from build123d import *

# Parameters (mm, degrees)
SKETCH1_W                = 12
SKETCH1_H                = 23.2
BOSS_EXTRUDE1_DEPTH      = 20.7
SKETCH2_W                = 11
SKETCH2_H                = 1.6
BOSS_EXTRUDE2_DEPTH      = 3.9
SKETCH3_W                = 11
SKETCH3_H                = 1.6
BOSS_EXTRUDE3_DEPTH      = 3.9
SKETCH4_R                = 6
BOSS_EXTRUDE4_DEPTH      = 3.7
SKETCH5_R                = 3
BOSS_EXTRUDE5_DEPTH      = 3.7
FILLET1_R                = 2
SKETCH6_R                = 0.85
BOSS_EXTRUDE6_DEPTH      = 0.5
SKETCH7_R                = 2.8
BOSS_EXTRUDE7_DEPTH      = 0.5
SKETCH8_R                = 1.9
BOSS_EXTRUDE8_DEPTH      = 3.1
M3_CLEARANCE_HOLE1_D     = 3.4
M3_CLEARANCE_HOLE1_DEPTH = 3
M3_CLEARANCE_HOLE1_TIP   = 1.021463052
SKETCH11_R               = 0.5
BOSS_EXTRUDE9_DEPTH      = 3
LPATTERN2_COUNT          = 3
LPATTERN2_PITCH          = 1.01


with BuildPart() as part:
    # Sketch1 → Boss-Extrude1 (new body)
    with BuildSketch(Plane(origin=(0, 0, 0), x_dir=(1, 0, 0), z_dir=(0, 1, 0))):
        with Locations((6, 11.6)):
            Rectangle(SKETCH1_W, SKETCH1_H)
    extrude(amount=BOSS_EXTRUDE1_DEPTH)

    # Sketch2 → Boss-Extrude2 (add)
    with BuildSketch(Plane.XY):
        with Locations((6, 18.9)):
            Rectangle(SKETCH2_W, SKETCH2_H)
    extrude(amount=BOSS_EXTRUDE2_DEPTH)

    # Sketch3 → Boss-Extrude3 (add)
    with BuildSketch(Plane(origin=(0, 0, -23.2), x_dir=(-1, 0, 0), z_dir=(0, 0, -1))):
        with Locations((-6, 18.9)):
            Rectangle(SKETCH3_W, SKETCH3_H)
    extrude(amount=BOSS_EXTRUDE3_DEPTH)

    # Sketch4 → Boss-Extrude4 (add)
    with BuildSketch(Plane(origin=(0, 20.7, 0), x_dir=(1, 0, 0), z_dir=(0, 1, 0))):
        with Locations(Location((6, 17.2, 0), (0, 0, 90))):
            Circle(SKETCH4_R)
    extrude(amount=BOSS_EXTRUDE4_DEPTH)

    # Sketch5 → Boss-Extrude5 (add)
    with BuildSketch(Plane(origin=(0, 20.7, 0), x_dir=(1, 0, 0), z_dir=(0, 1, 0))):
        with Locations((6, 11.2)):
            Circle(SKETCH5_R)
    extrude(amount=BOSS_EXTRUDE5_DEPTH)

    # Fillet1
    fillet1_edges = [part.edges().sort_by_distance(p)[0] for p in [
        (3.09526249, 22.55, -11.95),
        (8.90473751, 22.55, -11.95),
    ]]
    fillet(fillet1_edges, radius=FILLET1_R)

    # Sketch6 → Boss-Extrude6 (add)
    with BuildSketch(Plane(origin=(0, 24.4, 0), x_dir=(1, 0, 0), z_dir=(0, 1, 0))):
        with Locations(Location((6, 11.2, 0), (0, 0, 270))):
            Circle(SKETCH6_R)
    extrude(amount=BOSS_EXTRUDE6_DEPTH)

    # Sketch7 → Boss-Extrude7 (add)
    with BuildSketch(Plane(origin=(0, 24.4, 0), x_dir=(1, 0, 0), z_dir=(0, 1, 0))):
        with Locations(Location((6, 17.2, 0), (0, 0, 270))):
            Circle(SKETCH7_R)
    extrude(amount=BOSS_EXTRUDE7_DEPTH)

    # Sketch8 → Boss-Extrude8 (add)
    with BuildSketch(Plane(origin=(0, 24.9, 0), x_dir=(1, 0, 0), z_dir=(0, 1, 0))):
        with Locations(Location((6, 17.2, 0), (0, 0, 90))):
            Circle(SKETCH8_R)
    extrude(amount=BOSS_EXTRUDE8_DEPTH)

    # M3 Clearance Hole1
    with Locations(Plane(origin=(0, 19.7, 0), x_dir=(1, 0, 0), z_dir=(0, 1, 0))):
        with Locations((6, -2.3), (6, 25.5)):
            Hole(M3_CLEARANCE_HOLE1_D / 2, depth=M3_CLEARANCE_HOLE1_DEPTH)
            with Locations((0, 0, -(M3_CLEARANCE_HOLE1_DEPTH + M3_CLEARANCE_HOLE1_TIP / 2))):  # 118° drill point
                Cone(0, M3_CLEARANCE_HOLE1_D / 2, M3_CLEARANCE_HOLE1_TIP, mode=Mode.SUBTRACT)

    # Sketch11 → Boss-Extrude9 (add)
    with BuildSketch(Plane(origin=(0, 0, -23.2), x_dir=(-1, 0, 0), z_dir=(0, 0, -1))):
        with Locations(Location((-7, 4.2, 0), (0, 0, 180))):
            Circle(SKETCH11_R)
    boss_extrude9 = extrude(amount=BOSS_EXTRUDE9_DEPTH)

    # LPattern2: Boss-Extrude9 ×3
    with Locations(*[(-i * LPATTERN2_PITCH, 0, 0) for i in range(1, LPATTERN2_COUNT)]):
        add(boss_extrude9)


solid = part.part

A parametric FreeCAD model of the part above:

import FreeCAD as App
import Part
import Sketcher
from FreeCAD import Vector


def edges_at(feature, points):
    """Names of the edges that pass closest to the given points."""
    edges = feature.Shape.Edges
    near = lambda p: min(range(len(edges)), key=lambda i: edges[i].distToShape(Part.Vertex(*p))[0])
    return sorted({f"Edge{near(p) + 1}" for p in points})


def add_polygon(sketch, points):
    """Adds a closed chain of lines whose ends are joined by coincident constraints."""
    first, n = sketch.GeometryCount, len(points)
    for a, b in zip(points, points[1:] + points[:1]):
        sketch.addGeometry(Part.LineSegment(App.Vector(*a, 0), App.Vector(*b, 0)), False)
    for i in range(n):
        sketch.addConstraint(Sketcher.Constraint("Coincident", first + i, 2, first + (i + 1) % n, 1))

doc = App.newDocument("Part")
body = doc.addObject("PartDesign::Body", "Body")

# Sketch on XZ plane
sketch1 = body.newObject("Sketcher::SketchObject", "Sketch")
sketch1.AttachmentSupport = (doc.getObject("XZ_Plane"), [""])
sketch1.MapMode = "FlatFace"
add_polygon(sketch1, [(0, -23), (0, 0), (12, 0), (12, -23)])  # lines 0-3
sketch1.addConstraint(Sketcher.Constraint("Vertical", 0))
sketch1.addConstraint(Sketcher.Constraint("Horizontal", 1))
sketch1.addConstraint(Sketcher.Constraint("Vertical", 2))
sketch1.addConstraint(Sketcher.Constraint("Horizontal", 3))
sketch1.addConstraint(Sketcher.Constraint("Coincident", 0, 2, -1, 1))
sketch1.addConstraint(Sketcher.Constraint("DistanceX", 1, 1, 1, 2, 12.0))
sketch1.addConstraint(Sketcher.Constraint("DistanceY", 0, 1, 0, 2, 23.2))
pad1 = body.newObject("PartDesign::Pad", "Pad")
pad1.Profile = sketch1
pad1.Length = 20.7
pad1.Reversed = True

# Sketch on XY plane
sketch2 = body.newObject("Sketcher::SketchObject", "Sketch001")
sketch2.AttachmentSupport = (doc.getObject("XY_Plane"), [""])
sketch2.MapMode = "FlatFace"
add_polygon(sketch2, [(0.5, 19.7), (0.5, 18.1), (11.5, 18.1), (11.5, 19.7)])  # lines 0-3
sketch2.addConstraint(Sketcher.Constraint("Vertical", 0))
sketch2.addConstraint(Sketcher.Constraint("Horizontal", 1))
sketch2.addConstraint(Sketcher.Constraint("Vertical", 2))
sketch2.addConstraint(Sketcher.Constraint("Horizontal", 3))
sketch2.addConstraint(Sketcher.Constraint("DistanceX", 1, 1, 1, 2, 11.0))
sketch2.addConstraint(Sketcher.Constraint("DistanceY", 0, 2, 0, 1, 1.6))
sketch2.addConstraint(Sketcher.Constraint("DistanceX", -1, 1, 0, 2, 0.5))
sketch2.addConstraint(Sketcher.Constraint("DistanceY", -1, 1, 0, 2, 18.1))
pad2 = body.newObject("PartDesign::Pad", "Pad001")
pad2.Profile = sketch2
pad2.Length = 3.9

# Sketch on XY plane
sketch3 = body.newObject("Sketcher::SketchObject", "Sketch002")
sketch3.AttachmentSupport = (doc.getObject("XY_Plane"), [""])
sketch3.MapMode = "FlatFace"
sketch3.AttachmentOffset = App.Placement(Vector(0, 0, -23.2), App.Rotation())
add_polygon(sketch3, [(11.5, 19.7), (11.5, 18.1), (0.5, 18.1), (0.5, 19.7)])  # lines 0-3
sketch3.addConstraint(Sketcher.Constraint("Vertical", 0))
sketch3.addConstraint(Sketcher.Constraint("Horizontal", 1))
sketch3.addConstraint(Sketcher.Constraint("Vertical", 2))
sketch3.addConstraint(Sketcher.Constraint("Horizontal", 3))
sketch3.addConstraint(Sketcher.Constraint("DistanceX", 1, 2, 1, 1, 11.0))
sketch3.addConstraint(Sketcher.Constraint("DistanceY", 0, 2, 0, 1, 1.6))
sketch3.addConstraint(Sketcher.Constraint("DistanceX", -1, 1, 0, 2, 11.5))
sketch3.addConstraint(Sketcher.Constraint("DistanceY", -1, 1, 0, 2, 18.1))
pad3 = body.newObject("PartDesign::Pad", "Pad002")
pad3.Profile = sketch3
pad3.Length = 3.9
pad3.Reversed = True

# Sketch on XZ plane
sketch4 = body.newObject("Sketcher::SketchObject", "Sketch003")
sketch4.AttachmentSupport = (doc.getObject("XZ_Plane"), [""])
sketch4.MapMode = "FlatFace"
sketch4.AttachmentOffset = App.Placement(Vector(0, 0, -20.7), App.Rotation())
sketch4.addGeometry(Part.Circle(Vector(6, -17, 0), Vector(0, 0, 1), 6), False)
sketch4.addConstraint(Sketcher.Constraint("Diameter", 0, 12.0))
sketch4.addConstraint(Sketcher.Constraint("DistanceX", -1, 1, 0, 3, 6.0))
sketch4.addConstraint(Sketcher.Constraint("DistanceY", 0, 3, -1, 1, 17.2))
pad4 = body.newObject("PartDesign::Pad", "Pad003")
pad4.Profile = sketch4
pad4.Length = 3.7
pad4.Reversed = True

# Sketch on XZ plane
sketch5 = body.newObject("Sketcher::SketchObject", "Sketch004")
sketch5.AttachmentSupport = (doc.getObject("XZ_Plane"), [""])
sketch5.MapMode = "FlatFace"
sketch5.AttachmentOffset = App.Placement(Vector(0, 0, -20.7), App.Rotation())
sketch5.addGeometry(Part.Circle(Vector(6, -11.2, 0), Vector(0, 0, 1), 3), False)
sketch5.addConstraint(Sketcher.Constraint("Diameter", 0, 6.0))
sketch5.addConstraint(Sketcher.Constraint("DistanceX", -1, 1, 0, 3, 6.0))
sketch5.addConstraint(Sketcher.Constraint("DistanceY", 0, 3, -1, 1, 11.2))
pad5 = body.newObject("PartDesign::Pad", "Pad004")
pad5.Profile = sketch5
pad5.Length = 3.7
pad5.Reversed = True
doc.recompute()

fillet = body.newObject("PartDesign::Fillet", "Fillet")
fillet.Base = (pad5, edges_at(pad5, [(3.095, 22.55, -11.95), (8.905, 22.55, -11.95)]))
fillet.Radius = 2

# Sketch on XZ plane
sketch6 = body.newObject("Sketcher::SketchObject", "Sketch005")
sketch6.AttachmentSupport = (doc.getObject("XZ_Plane"), [""])
sketch6.MapMode = "FlatFace"
sketch6.AttachmentOffset = App.Placement(Vector(0, 0, -24.4), App.Rotation())
sketch6.addGeometry(Part.Circle(Vector(6, -11.2, 0), Vector(0, 0, 1), 0.8), False)
sketch6.addConstraint(Sketcher.Constraint("Diameter", 0, 1.7))
sketch6.addConstraint(Sketcher.Constraint("DistanceX", -1, 1, 0, 3, 6.0))
sketch6.addConstraint(Sketcher.Constraint("DistanceY", 0, 3, -1, 1, 11.2))
pad6 = body.newObject("PartDesign::Pad", "Pad005")
pad6.Profile = sketch6
pad6.Length = 0.5
pad6.Reversed = True

# Sketch on XZ plane
sketch7 = body.newObject("Sketcher::SketchObject", "Sketch006")
sketch7.AttachmentSupport = (doc.getObject("XZ_Plane"), [""])
sketch7.MapMode = "FlatFace"
sketch7.AttachmentOffset = App.Placement(Vector(0, 0, -24.4), App.Rotation())
sketch7.addGeometry(Part.Circle(Vector(6, -17.2, 0), Vector(0, 0, 1), 2.8), False)
sketch7.addConstraint(Sketcher.Constraint("Diameter", 0, 5.6))
sketch7.addConstraint(Sketcher.Constraint("DistanceX", -1, 1, 0, 3, 6.0))
sketch7.addConstraint(Sketcher.Constraint("DistanceY", 0, 3, -1, 1, 17.2))
pad7 = body.newObject("PartDesign::Pad", "Pad006")
pad7.Profile = sketch7
pad7.Length = 0.5
pad7.Reversed = True

# Sketch on XZ plane
sketch8 = body.newObject("Sketcher::SketchObject", "Sketch007")
sketch8.AttachmentSupport = (doc.getObject("XZ_Plane"), [""])
sketch8.MapMode = "FlatFace"
sketch8.AttachmentOffset = App.Placement(Vector(0, 0, -24.9), App.Rotation())
sketch8.addGeometry(Part.Circle(Vector(6, -17.2, 0), Vector(0, 0, 1), 1.9), False)
sketch8.addConstraint(Sketcher.Constraint("Diameter", 0, 3.8))
sketch8.addConstraint(Sketcher.Constraint("DistanceX", -1, 1, 0, 3, 6.0))
sketch8.addConstraint(Sketcher.Constraint("DistanceY", 0, 3, -1, 1, 17.2))
pad8 = body.newObject("PartDesign::Pad", "Pad007")
pad8.Profile = sketch8
pad8.Length = 3.1
pad8.Reversed = True

# Sketch on XZ plane
sketch9 = body.newObject("Sketcher::SketchObject", "Sketch008")
sketch9.AttachmentSupport = (doc.getObject("XZ_Plane"), [""])
sketch9.MapMode = "FlatFace"
sketch9.AttachmentOffset = App.Placement(Vector(0, 0, -19.7), App.Rotation())
sketch9.addGeometry(Part.Circle(Vector(6, 2.3, 0), Vector(0, 0, 1), 1.7), False)
sketch9.addGeometry(Part.Circle(Vector(6, -25.5, 0), Vector(0, 0, 1), 1.7), False)
sketch9.addConstraint(Sketcher.Constraint("Equal", 0, 1))
sketch9.addConstraint(Sketcher.Constraint("Vertical", 0, 3, 1, 3))
sketch9.addConstraint(Sketcher.Constraint("Diameter", 0, 3.4))
sketch9.addConstraint(Sketcher.Constraint("DistanceX", -1, 1, 0, 3, 6.0))
sketch9.addConstraint(Sketcher.Constraint("DistanceY", -1, 1, 0, 3, 2.3))
sketch9.addConstraint(Sketcher.Constraint("DistanceY", 1, 3, -1, 1, 25.5))
doc.recompute()
hole = body.newObject("PartDesign::Hole", "Hole")
hole.Profile = sketch9
hole.ThreadType = "None"
hole.Diameter = 3.4
hole.DepthType = "Dimension"
hole.Depth = 3
hole.DrillPoint = "Angled"
hole.DrillPointAngle = 118
hole.Reversed = True

# Sketch on XY plane
sketch10 = body.newObject("Sketcher::SketchObject", "Sketch009")
sketch10.AttachmentSupport = (doc.getObject("XY_Plane"), [""])
sketch10.MapMode = "FlatFace"
sketch10.AttachmentOffset = App.Placement(Vector(0, 0, -23.2), App.Rotation())
sketch10.addGeometry(Part.Circle(Vector(7, 4.2, 0), Vector(0, 0, 1), 0.5), False)
sketch10.addConstraint(Sketcher.Constraint("Diameter", 0, 1.0))
sketch10.addConstraint(Sketcher.Constraint("DistanceX", -1, 1, 0, 3, 7.0))
sketch10.addConstraint(Sketcher.Constraint("DistanceY", -1, 1, 0, 3, 4.2))
pad9 = body.newObject("PartDesign::Pad", "Pad008")
pad9.Profile = sketch10
pad9.Length = 3
pad9.Reversed = True
doc.recompute()

linearpattern = body.newObject("PartDesign::LinearPattern", "LinearPattern")
linearpattern.Originals = [pad9]
linearpattern.Direction = (doc.getObject("X_Axis"), [""])
linearpattern.Mode = "offset"
linearpattern.Offset = 1.01
linearpattern.Occurrences = 3
linearpattern.Reversed = True
body.Tip = linearpattern

doc.recompute()
